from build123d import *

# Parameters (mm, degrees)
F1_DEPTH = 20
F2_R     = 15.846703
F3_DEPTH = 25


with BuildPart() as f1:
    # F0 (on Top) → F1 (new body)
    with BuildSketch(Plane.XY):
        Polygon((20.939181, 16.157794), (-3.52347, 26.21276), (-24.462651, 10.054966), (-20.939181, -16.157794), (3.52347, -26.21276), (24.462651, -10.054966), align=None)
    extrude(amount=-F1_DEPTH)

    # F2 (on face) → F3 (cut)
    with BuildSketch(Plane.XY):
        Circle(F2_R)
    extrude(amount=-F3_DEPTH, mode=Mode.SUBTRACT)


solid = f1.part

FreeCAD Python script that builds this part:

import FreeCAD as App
import Part
import Sketcher


def add_polygon(sketch, points):
    """Adds a closed chain of lines whose ends are joined by coincident constraints."""
    first, n = sketch.GeometryCount, len(points)
    for a, b in zip(points, points[1:] + points[:1]):
        sketch.addGeometry(Part.LineSegment(App.Vector(*a, 0), App.Vector(*b, 0)), False)
    for i in range(n):
        sketch.addConstraint(Sketcher.Constraint("Coincident", first + i, 2, first + (i + 1) % n, 1))

doc = App.newDocument("Part")
params = doc.addObject("Spreadsheet::Sheet", "Params")
for row, (alias, value) in enumerate([
    ("pad1_length", "20 mm"),
    ("pocket1_length", "25 mm"),
], start=1):
    params.set(f"A{row}", alias)
    params.set(f"B{row}", "=" + value)
    params.setAlias(f"B{row}", alias)

body = doc.addObject("PartDesign::Body", "Body")

# Sketch on XY plane
sketch1 = doc.addObject("Sketcher::SketchObject", "Sketch")
body.addObject(sketch1)
sketch1.AttachmentSupport = (doc.XY_Plane, [""])
sketch1.MapMode = "FlatFace"
add_polygon(sketch1, [(21, 16), (-4, 26), (-24, 10), (-21, -16), (4, -26), (24, -10)])  # lines 0-5
sketch1.addConstraint([
    Sketcher.Constraint("Symmetric", 0, 2, 3, 2, -1, 1),
    Sketcher.Constraint("Symmetric", 1, 2, 4, 2, -1, 1),
    Sketcher.Constraint("Symmetric", 2, 2, 5, 2, -1, 1),
    Sketcher.Constraint("Equal", 0, 1),
    Sketcher.Constraint("Equal", 1, 2),
    Sketcher.Constraint("Distance", 0, 26.448509),
    Sketcher.Constraint("DistanceX", 0, 2, -1, 1, 3.52347),
    Sketcher.Constraint("DistanceY", -1, 1, 0, 2, 26.21276),
    Sketcher.Constraint("DistanceX", 1, 2, -1, 1, 24.462651),
])
pad1 = doc.addObject("PartDesign::Pad", "Pad")
body.addObject(pad1)
pad1.Profile = sketch1
pad1.setExpression("Length", "Params.pad1_length")
pad1.Reversed = True

# Sketch on XY plane
sketch2 = doc.addObject("Sketcher::SketchObject", "Sketch001")
body.addObject(sketch2)
sketch2.AttachmentSupport = (doc.XY_Plane, [""])
sketch2.MapMode = "FlatFace"
sketch2.addGeometry(Part.Circle(App.Vector(0, 0, 0), App.Vector(0, 0, 1), 16), False)
sketch2.addConstraint([
    Sketcher.Constraint("Coincident", 0, 3, -1, 1),
    Sketcher.Constraint("Diameter", 0, 31.693406),
])
pocket1 = doc.addObject("PartDesign::Pocket", "Pocket")
body.addObject(pocket1)
pocket1.Profile = sketch2
pocket1.setExpression("Length", "Params.pocket1_length")

doc.recompute()
